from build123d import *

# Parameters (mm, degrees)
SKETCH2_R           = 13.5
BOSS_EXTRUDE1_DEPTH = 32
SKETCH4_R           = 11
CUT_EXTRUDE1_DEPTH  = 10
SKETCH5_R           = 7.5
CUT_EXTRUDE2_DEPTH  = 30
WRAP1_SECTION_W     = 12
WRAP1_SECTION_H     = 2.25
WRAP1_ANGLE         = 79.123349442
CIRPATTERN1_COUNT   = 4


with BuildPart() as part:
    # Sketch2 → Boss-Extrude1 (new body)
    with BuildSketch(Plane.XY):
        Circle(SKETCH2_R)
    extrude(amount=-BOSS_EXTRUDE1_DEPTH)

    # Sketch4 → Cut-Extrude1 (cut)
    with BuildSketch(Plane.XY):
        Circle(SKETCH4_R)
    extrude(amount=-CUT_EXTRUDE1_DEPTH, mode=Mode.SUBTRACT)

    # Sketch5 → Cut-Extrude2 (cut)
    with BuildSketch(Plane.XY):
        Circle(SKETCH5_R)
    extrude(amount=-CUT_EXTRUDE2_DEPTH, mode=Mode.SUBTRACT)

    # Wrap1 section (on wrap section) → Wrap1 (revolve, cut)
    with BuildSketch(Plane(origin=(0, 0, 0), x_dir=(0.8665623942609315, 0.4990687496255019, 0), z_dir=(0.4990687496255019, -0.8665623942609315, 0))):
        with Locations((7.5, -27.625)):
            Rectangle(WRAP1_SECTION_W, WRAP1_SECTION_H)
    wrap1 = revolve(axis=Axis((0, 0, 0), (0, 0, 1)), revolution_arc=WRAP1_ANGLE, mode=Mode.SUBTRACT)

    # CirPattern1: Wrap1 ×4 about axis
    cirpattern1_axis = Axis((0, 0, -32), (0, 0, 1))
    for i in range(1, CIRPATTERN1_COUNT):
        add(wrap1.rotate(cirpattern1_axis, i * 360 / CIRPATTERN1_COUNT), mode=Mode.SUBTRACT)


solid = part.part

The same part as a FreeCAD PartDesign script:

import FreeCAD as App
import Part
import Sketcher

V = App.Vector
Q = App.Units.Quantity


def add_polygon(sketch, points):
    """Adds a closed chain of lines whose ends are joined by coincident constraints."""
    first, n = sketch.GeometryCount, len(points)
    for a, b in zip(points, points[1:] + points[:1]):
        sketch.addGeometry(Part.LineSegment(App.Vector(*a, 0), App.Vector(*b, 0)), False)
    for i in range(n):
        sketch.addConstraint(Sketcher.Constraint("Coincident", first + i, 2, first + (i + 1) % n, 1))

doc = App.newDocument("Part")
body = doc.addObject("PartDesign::Body", "Body")

sketch1 = body.newObject("Sketcher::SketchObject", "Sketch")
sketch1.AttachmentSupport = (doc.getObject("XY_Plane"), [""])
sketch1.MapMode = "FlatFace"
sketch1.addGeometry(Part.Circle(V(0, 0, 0), V(0, 0, 1), 14), False)
sketch1.addConstraint([
    Sketcher.Constraint("Coincident", 0, 3, -1, 1),
    Sketcher.Constraint("Diameter", 0, Q("27 mm")),
])
pad1 = body.newObject("PartDesign::Pad", "Pad")
pad1.Profile = sketch1
pad1.Length = 32
pad1.Reversed = True

sketch2 = body.newObject("Sketcher::SketchObject", "Sketch001")
sketch2.AttachmentSupport = (doc.getObject("XY_Plane"), [""])
sketch2.MapMode = "FlatFace"
sketch2.addGeometry(Part.Circle(V(0, 0, 0), V(0, 0, 1), 11), False)
sketch2.addConstraint([
    Sketcher.Constraint("Coincident", 0, 3, -1, 1),
    Sketcher.Constraint("Diameter", 0, Q("22 mm")),
])
pocket1 = body.newObject("PartDesign::Pocket", "Pocket")
pocket1.Profile = sketch2
pocket1.Length = 10

sketch3 = body.newObject("Sketcher::SketchObject", "Sketch002")
sketch3.AttachmentSupport = (doc.getObject("XY_Plane"), [""])
sketch3.MapMode = "FlatFace"
sketch3.addGeometry(Part.Circle(V(0, 0, 0), V(0, 0, 1), 8), False)
sketch3.addConstraint([
    Sketcher.Constraint("Coincident", 0, 3, -1, 1),
    Sketcher.Constraint("Diameter", 0, Q("15 mm")),
])
pocket2 = body.newObject("PartDesign::Pocket", "Pocket001")
pocket2.Profile = sketch3
pocket2.Length = 30

sketch4 = body.newObject("Sketcher::SketchObject", "Sketch003")
sketch4.Placement = App.Placement(V(0, 0, 0), App.Rotation(V(0.866562394, 0.49906875, 0), V(0, 0, 1), V(0.49906875, -0.866562394, 0), "ZXY"))
add_polygon(sketch4, [(1.5, -26.5), (1.5, -28.7), (13.5, -28.7), (13.5, -26.5)])
sketch4.addConstraint([
    Sketcher.Constraint("Vertical", 0),
    Sketcher.Constraint("Horizontal", 1),
    Sketcher.Constraint("Vertical", 2),
    Sketcher.Constraint("Horizontal", 3),
    Sketcher.Constraint("DistanceX", 1, 1, 1, 2, Q("12 mm")),
    Sketcher.Constraint("DistanceY", 0, 2, 0, 1, Q("2.25 mm")),
    Sketcher.Constraint("DistanceX", -1, 1, 0, 2, Q("1.5 mm")),
    Sketcher.Constraint("DistanceY", 2, 2, -1, 1, Q("26.5 mm")),
])
groove = body.newObject("PartDesign::Groove", "Groove")
groove.Profile = sketch4
groove.ReferenceAxis = (sketch4, ["V_Axis"])
groove.Angle = 79.123349
doc.recompute()

polarpattern = body.newObject("PartDesign::PolarPattern", "PolarPattern")
polarpattern.Originals = [groove]
polarpattern.Axis = (doc.getObject("Z_Axis"), [""])
polarpattern.Angle = 360
polarpattern.Occurrences = 4
body.Tip = polarpattern

doc.recompute()
